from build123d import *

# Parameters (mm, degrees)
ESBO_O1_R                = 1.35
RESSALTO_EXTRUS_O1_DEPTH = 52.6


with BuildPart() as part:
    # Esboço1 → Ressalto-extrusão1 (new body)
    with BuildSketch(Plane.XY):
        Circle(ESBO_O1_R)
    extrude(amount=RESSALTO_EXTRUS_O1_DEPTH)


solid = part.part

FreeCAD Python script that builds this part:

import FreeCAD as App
import Part
import Sketcher

V = App.Vector
Q = App.Units.Quantity

doc = App.newDocument("Part")
body = doc.addObject("PartDesign::Body", "Body")

sketch1 = body.newObject("Sketcher::SketchObject", "Sketch")
sketch1.AttachmentSupport = (doc.getObject("XY_Plane"), [""])
sketch1.MapMode = "FlatFace"
sketch1.addGeometry(Part.Circle(V(0, 0, 0), V(0, 0, 1), 1.4), False)
sketch1.addConstraint(Sketcher.Constraint("Coincident", 0, 3, -1, 1))
sketch1.addConstraint(Sketcher.Constraint("Diameter", 0, Q("2.7 mm")))
pad1 = body.newObject("PartDesign::Pad", "Pad")
pad1.Profile = sketch1
pad1.Length = 52.6

doc.recompute()
